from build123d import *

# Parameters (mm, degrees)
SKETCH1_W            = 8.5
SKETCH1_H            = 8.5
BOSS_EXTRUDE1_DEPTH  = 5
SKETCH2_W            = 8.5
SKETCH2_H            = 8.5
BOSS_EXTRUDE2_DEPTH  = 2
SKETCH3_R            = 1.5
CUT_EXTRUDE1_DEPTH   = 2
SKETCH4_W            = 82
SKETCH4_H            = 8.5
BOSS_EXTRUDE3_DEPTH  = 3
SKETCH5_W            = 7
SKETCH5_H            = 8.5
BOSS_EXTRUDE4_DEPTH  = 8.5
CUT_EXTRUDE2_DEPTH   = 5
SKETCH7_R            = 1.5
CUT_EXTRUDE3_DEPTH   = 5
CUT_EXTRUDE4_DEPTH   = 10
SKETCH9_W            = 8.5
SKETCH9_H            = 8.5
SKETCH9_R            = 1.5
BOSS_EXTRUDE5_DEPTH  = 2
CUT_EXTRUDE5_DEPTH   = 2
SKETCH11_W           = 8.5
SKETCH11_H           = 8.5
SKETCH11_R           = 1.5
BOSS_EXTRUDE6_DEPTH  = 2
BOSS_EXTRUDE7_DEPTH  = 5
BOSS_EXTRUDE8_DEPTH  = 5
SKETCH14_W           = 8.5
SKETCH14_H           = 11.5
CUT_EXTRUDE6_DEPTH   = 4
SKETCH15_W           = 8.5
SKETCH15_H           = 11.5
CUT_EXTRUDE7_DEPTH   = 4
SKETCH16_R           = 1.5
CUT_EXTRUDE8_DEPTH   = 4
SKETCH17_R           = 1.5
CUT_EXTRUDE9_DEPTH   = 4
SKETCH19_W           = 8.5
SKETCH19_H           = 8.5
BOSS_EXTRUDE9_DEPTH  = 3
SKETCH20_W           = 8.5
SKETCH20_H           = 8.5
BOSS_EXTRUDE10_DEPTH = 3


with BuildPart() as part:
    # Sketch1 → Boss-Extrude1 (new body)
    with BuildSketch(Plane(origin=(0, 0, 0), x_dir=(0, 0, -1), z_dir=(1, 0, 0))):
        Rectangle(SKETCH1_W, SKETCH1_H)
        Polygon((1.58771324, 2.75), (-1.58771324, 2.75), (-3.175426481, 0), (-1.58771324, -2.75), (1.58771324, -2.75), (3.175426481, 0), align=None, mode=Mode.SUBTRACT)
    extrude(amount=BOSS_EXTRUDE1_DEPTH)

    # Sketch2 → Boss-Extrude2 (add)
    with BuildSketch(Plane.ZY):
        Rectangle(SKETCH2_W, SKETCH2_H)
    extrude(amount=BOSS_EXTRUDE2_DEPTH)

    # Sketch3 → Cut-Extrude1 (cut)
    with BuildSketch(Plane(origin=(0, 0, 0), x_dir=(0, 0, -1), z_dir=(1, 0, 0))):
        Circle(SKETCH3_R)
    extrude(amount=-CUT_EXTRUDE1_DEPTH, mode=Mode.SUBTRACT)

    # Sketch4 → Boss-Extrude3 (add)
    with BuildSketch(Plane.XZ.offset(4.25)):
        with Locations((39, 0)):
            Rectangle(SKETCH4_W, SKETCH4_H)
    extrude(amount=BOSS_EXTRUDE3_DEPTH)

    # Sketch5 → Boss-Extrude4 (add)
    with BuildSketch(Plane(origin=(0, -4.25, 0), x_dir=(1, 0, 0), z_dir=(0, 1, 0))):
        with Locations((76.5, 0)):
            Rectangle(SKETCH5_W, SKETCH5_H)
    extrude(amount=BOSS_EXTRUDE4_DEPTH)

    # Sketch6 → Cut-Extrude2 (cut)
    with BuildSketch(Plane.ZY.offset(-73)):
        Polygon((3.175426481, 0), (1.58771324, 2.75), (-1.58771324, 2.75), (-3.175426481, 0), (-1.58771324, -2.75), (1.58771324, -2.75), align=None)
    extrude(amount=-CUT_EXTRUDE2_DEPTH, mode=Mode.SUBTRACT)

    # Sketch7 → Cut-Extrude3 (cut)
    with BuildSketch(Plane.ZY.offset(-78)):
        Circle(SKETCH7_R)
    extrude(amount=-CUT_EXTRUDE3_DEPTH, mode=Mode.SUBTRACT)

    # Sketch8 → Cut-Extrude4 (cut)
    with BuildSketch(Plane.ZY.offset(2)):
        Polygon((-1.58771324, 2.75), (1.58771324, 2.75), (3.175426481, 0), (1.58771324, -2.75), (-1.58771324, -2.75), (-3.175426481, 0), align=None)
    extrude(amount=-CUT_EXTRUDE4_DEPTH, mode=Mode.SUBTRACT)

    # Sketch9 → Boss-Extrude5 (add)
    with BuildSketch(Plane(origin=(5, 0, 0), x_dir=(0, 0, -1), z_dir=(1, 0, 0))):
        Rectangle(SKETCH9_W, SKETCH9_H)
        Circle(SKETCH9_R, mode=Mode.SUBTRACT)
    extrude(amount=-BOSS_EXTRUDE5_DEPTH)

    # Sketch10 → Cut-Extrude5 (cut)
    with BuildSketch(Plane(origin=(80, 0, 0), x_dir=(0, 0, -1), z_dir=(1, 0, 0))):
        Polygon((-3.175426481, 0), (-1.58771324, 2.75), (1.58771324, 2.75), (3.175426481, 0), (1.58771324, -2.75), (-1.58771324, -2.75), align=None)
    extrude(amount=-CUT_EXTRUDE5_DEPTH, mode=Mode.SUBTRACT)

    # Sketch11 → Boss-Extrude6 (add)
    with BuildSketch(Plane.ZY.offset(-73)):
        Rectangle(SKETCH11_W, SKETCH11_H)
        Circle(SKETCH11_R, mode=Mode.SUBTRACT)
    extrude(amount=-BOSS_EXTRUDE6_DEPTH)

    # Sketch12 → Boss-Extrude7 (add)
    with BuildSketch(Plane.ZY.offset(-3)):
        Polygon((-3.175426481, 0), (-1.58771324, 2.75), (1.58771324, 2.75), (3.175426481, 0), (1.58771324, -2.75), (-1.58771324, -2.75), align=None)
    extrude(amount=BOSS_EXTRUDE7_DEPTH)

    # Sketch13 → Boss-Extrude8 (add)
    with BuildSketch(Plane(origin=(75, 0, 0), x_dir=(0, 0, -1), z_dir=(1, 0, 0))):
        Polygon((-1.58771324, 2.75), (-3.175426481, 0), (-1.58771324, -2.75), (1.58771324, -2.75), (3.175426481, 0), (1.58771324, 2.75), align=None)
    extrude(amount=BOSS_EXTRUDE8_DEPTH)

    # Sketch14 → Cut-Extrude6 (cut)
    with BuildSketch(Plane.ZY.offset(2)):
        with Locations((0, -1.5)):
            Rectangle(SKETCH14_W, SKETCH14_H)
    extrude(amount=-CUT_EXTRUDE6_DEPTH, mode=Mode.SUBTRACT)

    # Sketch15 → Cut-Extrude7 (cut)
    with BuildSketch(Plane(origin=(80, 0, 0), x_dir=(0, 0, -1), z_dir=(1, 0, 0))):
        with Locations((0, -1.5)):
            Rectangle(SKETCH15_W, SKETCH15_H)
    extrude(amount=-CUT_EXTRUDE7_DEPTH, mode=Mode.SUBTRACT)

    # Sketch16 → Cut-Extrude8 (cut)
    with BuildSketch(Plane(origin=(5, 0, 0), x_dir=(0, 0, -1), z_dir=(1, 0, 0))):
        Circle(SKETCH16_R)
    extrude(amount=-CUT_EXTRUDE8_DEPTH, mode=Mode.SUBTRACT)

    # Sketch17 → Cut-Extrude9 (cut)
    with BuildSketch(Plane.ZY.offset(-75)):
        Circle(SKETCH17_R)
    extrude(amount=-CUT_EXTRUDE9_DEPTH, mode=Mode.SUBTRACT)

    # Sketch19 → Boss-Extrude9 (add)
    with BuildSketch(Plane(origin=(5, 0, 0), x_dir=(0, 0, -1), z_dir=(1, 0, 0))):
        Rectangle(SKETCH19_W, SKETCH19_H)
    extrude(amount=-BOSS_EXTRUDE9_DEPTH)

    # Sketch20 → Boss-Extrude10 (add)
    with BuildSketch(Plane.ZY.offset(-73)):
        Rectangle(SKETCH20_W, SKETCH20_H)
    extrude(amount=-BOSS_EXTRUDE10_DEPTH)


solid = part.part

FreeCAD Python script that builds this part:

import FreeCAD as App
import Part
import Sketcher
Q = App.Units.Quantity

doc = App.newDocument("Part")
body = doc.addObject("PartDesign::Body", "Body")

sketch1 = body.newObject("Sketcher::SketchObject", "Sketch")
sketch1.AttachmentSupport = (doc.getObject("YZ_Plane"), [""])
sketch1.MapMode = "FlatFace"
sketch1.addGeometry(Part.LineSegment(App.Vector(4.2, 4.2, 0), App.Vector(-4.2, 4.2, 0)), False)
sketch1.addGeometry(Part.LineSegment(App.Vector(-4.2, 4.2, 0), App.Vector(-4.2, -4.2, 0)), False)
sketch1.addGeometry(Part.LineSegment(App.Vector(-4.2, -4.2, 0), App.Vector(4.2, -4.2, 0)), False)
sketch1.addGeometry(Part.LineSegment(App.Vector(4.2, -4.2, 0), App.Vector(4.2, 4.2, 0)), False)
sketch1.addGeometry(Part.LineSegment(App.Vector(2.8, 1.6, 0), App.Vector(2.8, -1.6, 0)), False)
sketch1.addGeometry(Part.LineSegment(App.Vector(2.8, -1.6, 0), App.Vector(0, -3.2, 0)), False)
sketch1.addGeometry(Part.LineSegment(App.Vector(0, -3.2, 0), App.Vector(-2.8, -1.6, 0)), False)
sketch1.addGeometry(Part.LineSegment(App.Vector(-2.8, -1.6, 0), App.Vector(-2.8, 1.6, 0)), False)
sketch1.addGeometry(Part.LineSegment(App.Vector(-2.8, 1.6, 0), App.Vector(0, 3.2, 0)), False)
sketch1.addGeometry(Part.LineSegment(App.Vector(0, 3.2, 0), App.Vector(2.8, 1.6, 0)), False)
sketch1.addConstraint(Sketcher.Constraint("Coincident", 0, 2, 1, 1))
sketch1.addConstraint(Sketcher.Constraint("Coincident", 1, 2, 2, 1))
sketch1.addConstraint(Sketcher.Constraint("Coincident", 2, 2, 3, 1))
sketch1.addConstraint(Sketcher.Constraint("Coincident", 3, 2, 0, 1))
sketch1.addConstraint(Sketcher.Constraint("Coincident", 4, 2, 5, 1))
sketch1.addConstraint(Sketcher.Constraint("Coincident", 5, 2, 6, 1))
sketch1.addConstraint(Sketcher.Constraint("Coincident", 6, 2, 7, 1))
sketch1.addConstraint(Sketcher.Constraint("Coincident", 7, 2, 8, 1))
sketch1.addConstraint(Sketcher.Constraint("Coincident", 8, 2, 9, 1))
sketch1.addConstraint(Sketcher.Constraint("Coincident", 9, 2, 4, 1))
sketch1.addConstraint(Sketcher.Constraint("Horizontal", 0))
sketch1.addConstraint(Sketcher.Constraint("Vertical", 1))
sketch1.addConstraint(Sketcher.Constraint("Horizontal", 2))
sketch1.addConstraint(Sketcher.Constraint("Vertical", 3))
sketch1.addConstraint(Sketcher.Constraint("Vertical", 4))
sketch1.addConstraint(Sketcher.Constraint("Vertical", 7))
sketch1.addConstraint(Sketcher.Constraint("Symmetric", 0, 2, 2, 2, -1, 1))
sketch1.addConstraint(Sketcher.Constraint("Symmetric", 4, 2, 7, 2, -1, 1))
sketch1.addConstraint(Sketcher.Constraint("Symmetric", 5, 2, 8, 2, -1, 1))
sketch1.addConstraint(Sketcher.Constraint("PointOnObject", 5, 2, -2))
sketch1.addConstraint(Sketcher.Constraint("Parallel", 6, 9))
sketch1.addConstraint(Sketcher.Constraint("Horizontal", 4, 2, 6, 2))
sketch1.addConstraint(Sketcher.Constraint("Equal", 2, 1))
sketch1.addConstraint(Sketcher.Constraint("Angle", 5, Q("-150 deg")))
sketch1.addConstraint(Sketcher.Constraint("DistanceX", 0, 2, 0, 1, 8.5))
sketch1.addConstraint(Sketcher.Constraint("DistanceX", 1, 2, 4, 2, 7.0))
sketch1.addConstraint(Sketcher.Constraint("DistanceY", 4, 2, 4, 1, 3.175426))
pad1 = body.newObject("PartDesign::Pad", "Pad")
pad1.Profile = sketch1
pad1.Length = 5

sketch2 = body.newObject("Sketcher::SketchObject", "Sketch001")
sketch2.AttachmentSupport = (doc.getObject("YZ_Plane"), [""])
sketch2.MapMode = "FlatFace"
sketch2.addGeometry(Part.LineSegment(App.Vector(4, -4, 0), App.Vector(-4, -4, 0)), False)
sketch2.addGeometry(Part.LineSegment(App.Vector(-4, -4, 0), App.Vector(-4, 4, 0)), False)
sketch2.addGeometry(Part.LineSegment(App.Vector(-4, 4, 0), App.Vector(4, 4, 0)), False)
sketch2.addGeometry(Part.LineSegment(App.Vector(4, 4, 0), App.Vector(4, -4, 0)), False)
sketch2.addConstraint(Sketcher.Constraint("Coincident", 0, 2, 1, 1))
sketch2.addConstraint(Sketcher.Constraint("Coincident", 1, 2, 2, 1))
sketch2.addConstraint(Sketcher.Constraint("Coincident", 2, 2, 3, 1))
sketch2.addConstraint(Sketcher.Constraint("Coincident", 3, 2, 0, 1))
sketch2.addConstraint(Sketcher.Constraint("Horizontal", 0))
sketch2.addConstraint(Sketcher.Constraint("Vertical", 1))
sketch2.addConstraint(Sketcher.Constraint("Horizontal", 2))
sketch2.addConstraint(Sketcher.Constraint("Vertical", 3))
sketch2.addConstraint(Sketcher.Constraint("Symmetric", 0, 2, 2, 2, -1, 1))
sketch2.addConstraint(Sketcher.Constraint("Equal", 2, 1))
sketch2.addConstraint(Sketcher.Constraint("DistanceX", 0, 2, 0, 1, 8.5))
pad2 = body.newObject("PartDesign::Pad", "Pad001")
pad2.Profile = sketch2
pad2.Length = 2
pad2.Reversed = True

sketch3 = body.newObject("Sketcher::SketchObject", "Sketch002")
sketch3.AttachmentSupport = (doc.getObject("YZ_Plane"), [""])
sketch3.MapMode = "FlatFace"
sketch3.addGeometry(Part.Circle(App.Vector(0, 0, 0), App.Vector(0, 0, 1), 1.5), False)
sketch3.addConstraint(Sketcher.Constraint("Coincident", 0, 3, -1, 1))
sketch3.addConstraint(Sketcher.Constraint("Diameter", 0, 3.0))
pocket1 = body.newObject("PartDesign::Pocket", "Pocket")
pocket1.Profile = sketch3
pocket1.Length = 2

sketch4 = body.newObject("Sketcher::SketchObject", "Sketch003")
sketch4.AttachmentSupport = (doc.getObject("XZ_Plane"), [""])
sketch4.MapMode = "FlatFace"
sketch4.AttachmentOffset = App.Placement(App.Vector(0, 0, 4.25), App.Rotation())
sketch4.addGeometry(Part.LineSegment(App.Vector(-2, 4, 0), App.Vector(-2, -4, 0)), False)
sketch4.addGeometry(Part.LineSegment(App.Vector(-2, -4, 0), App.Vector(80, -4, 0)), False)
sketch4.addGeometry(Part.LineSegment(App.Vector(80, -4, 0), App.Vector(80, 4, 0)), False)
sketch4.addGeometry(Part.LineSegment(App.Vector(80, 4, 0), App.Vector(-2, 4, 0)), False)
sketch4.addConstraint(Sketcher.Constraint("Coincident", 0, 2, 1, 1))
sketch4.addConstraint(Sketcher.Constraint("Coincident", 1, 2, 2, 1))
sketch4.addConstraint(Sketcher.Constraint("Coincident", 2, 2, 3, 1))
sketch4.addConstraint(Sketcher.Constraint("Coincident", 3, 2, 0, 1))
sketch4.addConstraint(Sketcher.Constraint("Vertical", 0))
sketch4.addConstraint(Sketcher.Constraint("Horizontal", 1))
sketch4.addConstraint(Sketcher.Constraint("Vertical", 2))
sketch4.addConstraint(Sketcher.Constraint("Horizontal", 3))
sketch4.addConstraint(Sketcher.Constraint("DistanceX", 1, 1, 1, 2, 82.0))
sketch4.addConstraint(Sketcher.Constraint("DistanceY", 0, 2, 0, 1, 8.5))
sketch4.addConstraint(Sketcher.Constraint("DistanceX", 0, 2, -1, 1, 2.0))
sketch4.addConstraint(Sketcher.Constraint("DistanceY", 0, 2, -1, 1, 4.25))
pad3 = body.newObject("PartDesign::Pad", "Pad002")
pad3.Profile = sketch4
pad3.Length = 3

sketch5 = body.newObject("Sketcher::SketchObject", "Sketch004")
sketch5.AttachmentSupport = (doc.getObject("XZ_Plane"), [""])
sketch5.MapMode = "FlatFace"
sketch5.AttachmentOffset = App.Placement(App.Vector(0, 0, 4.25), App.Rotation())
sketch5.addGeometry(Part.LineSegment(App.Vector(73, -4, 0), App.Vector(73, 4, 0)), False)
sketch5.addGeometry(Part.LineSegment(App.Vector(73, 4, 0), App.Vector(80, 4, 0)), False)
sketch5.addGeometry(Part.LineSegment(App.Vector(80, 4, 0), App.Vector(80, -4, 0)), False)
sketch5.addGeometry(Part.LineSegment(App.Vector(80, -4, 0), App.Vector(73, -4, 0)), False)
sketch5.addConstraint(Sketcher.Constraint("Coincident", 0, 2, 1, 1))
sketch5.addConstraint(Sketcher.Constraint("Coincident", 1, 2, 2, 1))
sketch5.addConstraint(Sketcher.Constraint("Coincident", 2, 2, 3, 1))
sketch5.addConstraint(Sketcher.Constraint("Coincident", 3, 2, 0, 1))
sketch5.addConstraint(Sketcher.Constraint("Vertical", 0))
sketch5.addConstraint(Sketcher.Constraint("Horizontal", 1))
sketch5.addConstraint(Sketcher.Constraint("Vertical", 2))
sketch5.addConstraint(Sketcher.Constraint("Horizontal", 3))
sketch5.addConstraint(Sketcher.Constraint("DistanceX", 1, 1, 1, 2, 7.0))
sketch5.addConstraint(Sketcher.Constraint("DistanceY", 0, 1, 0, 2, 8.5))
sketch5.addConstraint(Sketcher.Constraint("DistanceX", -1, 1, 0, 2, 73.0))
sketch5.addConstraint(Sketcher.Constraint("DistanceY", -1, 1, 0, 2, 4.25))
pad4 = body.newObject("PartDesign::Pad", "Pad003")
pad4.Profile = sketch5
pad4.Length = 8.5
pad4.Reversed = True

sketch6 = body.newObject("Sketcher::SketchObject", "Sketch005")
sketch6.AttachmentSupport = (doc.getObject("YZ_Plane"), [""])
sketch6.MapMode = "FlatFace"
sketch6.AttachmentOffset = App.Placement(App.Vector(0, 0, 73), App.Rotation())
sketch6.addGeometry(Part.LineSegment(App.Vector(0, 3.2, 0), App.Vector(2.8, 1.6, 0)), False)
sketch6.addGeometry(Part.LineSegment(App.Vector(2.8, 1.6, 0), App.Vector(2.8, -1.6, 0)), False)
sketch6.addGeometry(Part.LineSegment(App.Vector(2.8, -1.6, 0), App.Vector(0, -3.2, 0)), False)
sketch6.addGeometry(Part.LineSegment(App.Vector(0, -3.2, 0), App.Vector(-2.8, -1.6, 0)), False)
sketch6.addGeometry(Part.LineSegment(App.Vector(-2.8, -1.6, 0), App.Vector(-2.8, 1.6, 0)), False)
sketch6.addGeometry(Part.LineSegment(App.Vector(-2.8, 1.6, 0), App.Vector(0, 3.2, 0)), False)
sketch6.addConstraint(Sketcher.Constraint("Coincident", 0, 2, 1, 1))
sketch6.addConstraint(Sketcher.Constraint("Coincident", 1, 2, 2, 1))
sketch6.addConstraint(Sketcher.Constraint("Coincident", 2, 2, 3, 1))
sketch6.addConstraint(Sketcher.Constraint("Coincident", 3, 2, 4, 1))
sketch6.addConstraint(Sketcher.Constraint("Coincident", 4, 2, 5, 1))
sketch6.addConstraint(Sketcher.Constraint("Coincident", 5, 2, 0, 1))
sketch6.addConstraint(Sketcher.Constraint("Vertical", 1))
sketch6.addConstraint(Sketcher.Constraint("Vertical", 4))
sketch6.addConstraint(Sketcher.Constraint("Symmetric", 0, 2, 3, 2, -1, 1))
sketch6.addConstraint(Sketcher.Constraint("Symmetric", 2, 2, 5, 2, -1, 1))
sketch6.addConstraint(Sketcher.Constraint("PointOnObject", 2, 2, -2))
sketch6.addConstraint(Sketcher.Constraint("Parallel", 2, 5))
sketch6.addConstraint(Sketcher.Constraint("Horizontal", 1, 2, 3, 2))
sketch6.addConstraint(Sketcher.Constraint("Angle", 0, Q("-30 deg")))
sketch6.addConstraint(Sketcher.Constraint("DistanceX", 3, 2, 1, 2, 5.5))
sketch6.addConstraint(Sketcher.Constraint("DistanceY", 1, 2, 1, 1, 3.175426))
pocket2 = body.newObject("PartDesign::Pocket", "Pocket001")
pocket2.Profile = sketch6
pocket2.Length = 5
pocket2.Reversed = True

sketch7 = body.newObject("Sketcher::SketchObject", "Sketch006")
sketch7.AttachmentSupport = (doc.getObject("YZ_Plane"), [""])
sketch7.MapMode = "FlatFace"
sketch7.AttachmentOffset = App.Placement(App.Vector(0, 0, 78), App.Rotation())
sketch7.addGeometry(Part.Circle(App.Vector(0, 0, 0), App.Vector(0, 0, 1), 1.5), False)
sketch7.addConstraint(Sketcher.Constraint("Coincident", 0, 3, -1, 1))
sketch7.addConstraint(Sketcher.Constraint("Diameter", 0, 3.0))
pocket3 = body.newObject("PartDesign::Pocket", "Pocket002")
pocket3.Profile = sketch7
pocket3.Length = 5
pocket3.Reversed = True

sketch8 = body.newObject("Sketcher::SketchObject", "Sketch007")
sketch8.AttachmentSupport = (doc.getObject("YZ_Plane"), [""])
sketch8.MapMode = "FlatFace"
sketch8.AttachmentOffset = App.Placement(App.Vector(0, 0, -2), App.Rotation())
sketch8.addGeometry(Part.LineSegment(App.Vector(2.8, 1.6, 0), App.Vector(2.8, -1.6, 0)), False)
sketch8.addGeometry(Part.LineSegment(App.Vector(2.8, -1.6, 0), App.Vector(0, -3.2, 0)), False)
sketch8.addGeometry(Part.LineSegment(App.Vector(0, -3.2, 0), App.Vector(-2.8, -1.6, 0)), False)
sketch8.addGeometry(Part.LineSegment(App.Vector(-2.8, -1.6, 0), App.Vector(-2.8, 1.6, 0)), False)
sketch8.addGeometry(Part.LineSegment(App.Vector(-2.8, 1.6, 0), App.Vector(0, 3.2, 0)), False)
sketch8.addGeometry(Part.LineSegment(App.Vector(0, 3.2, 0), App.Vector(2.8, 1.6, 0)), False)
sketch8.addConstraint(Sketcher.Constraint("Coincident", 0, 2, 1, 1))
sketch8.addConstraint(Sketcher.Constraint("Coincident", 1, 2, 2, 1))
sketch8.addConstraint(Sketcher.Constraint("Coincident", 2, 2, 3, 1))
sketch8.addConstraint(Sketcher.Constraint("Coincident", 3, 2, 4, 1))
sketch8.addConstraint(Sketcher.Constraint("Coincident", 4, 2, 5, 1))
sketch8.addConstraint(Sketcher.Constraint("Coincident", 5, 2, 0, 1))
sketch8.addConstraint(Sketcher.Constraint("Vertical", 0))
sketch8.addConstraint(Sketcher.Constraint("Vertical", 3))
sketch8.addConstraint(Sketcher.Constraint("Symmetric", 0, 2, 3, 2, -1, 1))
sketch8.addConstraint(Sketcher.Constraint("Symmetric", 1, 2, 4, 2, -1, 1))
sketch8.addConstraint(Sketcher.Constraint("PointOnObject", 1, 2, -2))
sketch8.addConstraint(Sketcher.Constraint("Parallel", 2, 5))
sketch8.addConstraint(Sketcher.Constraint("Horizontal", 0, 2, 2, 2))
sketch8.addConstraint(Sketcher.Constraint("Angle", 1, Q("-150 deg")))
sketch8.addConstraint(Sketcher.Constraint("DistanceX", 2, 2, 0, 2, 5.5))
sketch8.addConstraint(Sketcher.Constraint("DistanceY", 0, 2, 0, 1, 3.175426))
pocket4 = body.newObject("PartDesign::Pocket", "Pocket003")
pocket4.Profile = sketch8
pocket4.Length = 10
pocket4.Reversed = True

sketch9 = body.newObject("Sketcher::SketchObject", "Sketch008")
sketch9.AttachmentSupport = (doc.getObject("YZ_Plane"), [""])
sketch9.MapMode = "FlatFace"
sketch9.AttachmentOffset = App.Placement(App.Vector(0, 0, 5), App.Rotation())
sketch9.addGeometry(Part.LineSegment(App.Vector(4.2, 4.2, 0), App.Vector(-4.2, 4.2, 0)), False)
sketch9.addGeometry(Part.LineSegment(App.Vector(-4.2, 4.2, 0), App.Vector(-4.2, -4.2, 0)), False)
sketch9.addGeometry(Part.LineSegment(App.Vector(-4.2, -4.2, 0), App.Vector(4.2, -4.2, 0)), False)
sketch9.addGeometry(Part.LineSegment(App.Vector(4.2, -4.2, 0), App.Vector(4.2, 4.2, 0)), False)
sketch9.addGeometry(Part.Circle(App.Vector(0, 0, 0), App.Vector(0, 0, 1), 1.5), False)
sketch9.addConstraint(Sketcher.Constraint("Coincident", 0, 2, 1, 1))
sketch9.addConstraint(Sketcher.Constraint("Coincident", 1, 2, 2, 1))
sketch9.addConstraint(Sketcher.Constraint("Coincident", 2, 2, 3, 1))
sketch9.addConstraint(Sketcher.Constraint("Coincident", 3, 2, 0, 1))
sketch9.addConstraint(Sketcher.Constraint("Horizontal", 0))
sketch9.addConstraint(Sketcher.Constraint("Vertical", 1))
sketch9.addConstraint(Sketcher.Constraint("Horizontal", 2))
sketch9.addConstraint(Sketcher.Constraint("Vertical", 3))
sketch9.addConstraint(Sketcher.Constraint("Coincident", 4, 3, -1, 1))
sketch9.addConstraint(Sketcher.Constraint("Symmetric", 0, 2, 2, 2, -1, 1))
sketch9.addConstraint(Sketcher.Constraint("Equal", 2, 1))
sketch9.addConstraint(Sketcher.Constraint("Diameter", 4, 3.0))
sketch9.addConstraint(Sketcher.Constraint("DistanceX", 0, 2, 0, 1, 8.5))
pad5 = body.newObject("PartDesign::Pad", "Pad004")
pad5.Profile = sketch9
pad5.Length = 2
pad5.Reversed = True

sketch10 = body.newObject("Sketcher::SketchObject", "Sketch009")
sketch10.AttachmentSupport = (doc.getObject("YZ_Plane"), [""])
sketch10.MapMode = "FlatFace"
sketch10.AttachmentOffset = App.Placement(App.Vector(0, 0, 80), App.Rotation())
sketch10.addGeometry(Part.LineSegment(App.Vector(2.8, 1.6, 0), App.Vector(0, 3.2, 0)), False)
sketch10.addGeometry(Part.LineSegment(App.Vector(0, 3.2, 0), App.Vector(-2.8, 1.6, 0)), False)
sketch10.addGeometry(Part.LineSegment(App.Vector(-2.8, 1.6, 0), App.Vector(-2.8, -1.6, 0)), False)
sketch10.addGeometry(Part.LineSegment(App.Vector(-2.8, -1.6, 0), App.Vector(0, -3.2, 0)), False)
sketch10.addGeometry(Part.LineSegment(App.Vector(0, -3.2, 0), App.Vector(2.8, -1.6, 0)), False)
sketch10.addGeometry(Part.LineSegment(App.Vector(2.8, -1.6, 0), App.Vector(2.8, 1.6, 0)), False)
sketch10.addConstraint(Sketcher.Constraint("Coincident", 0, 2, 1, 1))
sketch10.addConstraint(Sketcher.Constraint("Coincident", 1, 2, 2, 1))
sketch10.addConstraint(Sketcher.Constraint("Coincident", 2, 2, 3, 1))
sketch10.addConstraint(Sketcher.Constraint("Coincident", 3, 2, 4, 1))
sketch10.addConstraint(Sketcher.Constraint("Coincident", 4, 2, 5, 1))
sketch10.addConstraint(Sketcher.Constraint("Coincident", 5, 2, 0, 1))
sketch10.addConstraint(Sketcher.Constraint("Vertical", 2))
sketch10.addConstraint(Sketcher.Constraint("Vertical", 5))
sketch10.addConstraint(Sketcher.Constraint("Symmetric", 0, 2, 3, 2, -1, 1))
sketch10.addConstraint(Sketcher.Constraint("Symmetric", 1, 2, 4, 2, -1, 1))
sketch10.addConstraint(Sketcher.Constraint("PointOnObject", 0, 2, -2))
sketch10.addConstraint(Sketcher.Constraint("Parallel", 0, 3))
sketch10.addConstraint(Sketcher.Constraint("Horizontal", 2, 2, 4, 2))
sketch10.addConstraint(Sketcher.Constraint("Angle", 0, Q("150 deg")))
sketch10.addConstraint(Sketcher.Constraint("DistanceX", 2, 2, 4, 2, 5.5))
sketch10.addConstraint(Sketcher.Constraint("DistanceY", 2, 2, 2, 1, 3.175426))
pocket5 = body.newObject("PartDesign::Pocket", "Pocket004")
pocket5.Profile = sketch10
pocket5.Length = 2

sketch11 = body.newObject("Sketcher::SketchObject", "Sketch010")
sketch11.AttachmentSupport = (doc.getObject("YZ_Plane"), [""])
sketch11.MapMode = "FlatFace"
sketch11.AttachmentOffset = App.Placement(App.Vector(0, 0, 73), App.Rotation())
sketch11.addGeometry(Part.LineSegment(App.Vector(4.2, -4.2, 0), App.Vector(-4.2, -4.2, 0)), False)
sketch11.addGeometry(Part.LineSegment(App.Vector(-4.2, -4.2, 0), App.Vector(-4.2, 4.2, 0)), False)
sketch11.addGeometry(Part.LineSegment(App.Vector(-4.2, 4.2, 0), App.Vector(4.2, 4.2, 0)), False)
sketch11.addGeometry(Part.LineSegment(App.Vector(4.2, 4.2, 0), App.Vector(4.2, -4.2, 0)), False)
sketch11.addGeometry(Part.Circle(App.Vector(0, 0, 0), App.Vector(0, 0, 1), 1.5), False)
sketch11.addConstraint(Sketcher.Constraint("Coincident", 0, 2, 1, 1))
sketch11.addConstraint(Sketcher.Constraint("Coincident", 1, 2, 2, 1))
sketch11.addConstraint(Sketcher.Constraint("Coincident", 2, 2, 3, 1))
sketch11.addConstraint(Sketcher.Constraint("Coincident", 3, 2, 0, 1))
sketch11.addConstraint(Sketcher.Constraint("Horizontal", 0))
sketch11.addConstraint(Sketcher.Constraint("Vertical", 1))
sketch11.addConstraint(Sketcher.Constraint("Horizontal", 2))
sketch11.addConstraint(Sketcher.Constraint("Vertical", 3))
sketch11.addConstraint(Sketcher.Constraint("Coincident", 4, 3, -1, 1))
sketch11.addConstraint(Sketcher.Constraint("Symmetric", 0, 2, 2, 2, -1, 1))
sketch11.addConstraint(Sketcher.Constraint("Equal", 2, 1))
sketch11.addConstraint(Sketcher.Constraint("Diameter", 4, 3.0))
sketch11.addConstraint(Sketcher.Constraint("DistanceX", 0, 2, 0, 1, 8.5))
pad6 = body.newObject("PartDesign::Pad", "Pad005")
pad6.Profile = sketch11
pad6.Length = 2

sketch12 = body.newObject("Sketcher::SketchObject", "Sketch011")
sketch12.AttachmentSupport = (doc.getObject("YZ_Plane"), [""])
sketch12.MapMode = "FlatFace"
sketch12.AttachmentOffset = App.Placement(App.Vector(0, 0, 3), App.Rotation())
sketch12.addGeometry(Part.LineSegment(App.Vector(2.8, -1.6, 0), App.Vector(0, -3.2, 0)), False)
sketch12.addGeometry(Part.LineSegment(App.Vector(0, -3.2, 0), App.Vector(-2.8, -1.6, 0)), False)
sketch12.addGeometry(Part.LineSegment(App.Vector(-2.8, -1.6, 0), App.Vector(-2.8, 1.6, 0)), False)
sketch12.addGeometry(Part.LineSegment(App.Vector(-2.8, 1.6, 0), App.Vector(0, 3.2, 0)), False)
sketch12.addGeometry(Part.LineSegment(App.Vector(0, 3.2, 0), App.Vector(2.8, 1.6, 0)), False)
sketch12.addGeometry(Part.LineSegment(App.Vector(2.8, 1.6, 0), App.Vector(2.8, -1.6, 0)), False)
sketch12.addConstraint(Sketcher.Constraint("Coincident", 0, 2, 1, 1))
sketch12.addConstraint(Sketcher.Constraint("Coincident", 1, 2, 2, 1))
sketch12.addConstraint(Sketcher.Constraint("Coincident", 2, 2, 3, 1))
sketch12.addConstraint(Sketcher.Constraint("Coincident", 3, 2, 4, 1))
sketch12.addConstraint(Sketcher.Constraint("Coincident", 4, 2, 5, 1))
sketch12.addConstraint(Sketcher.Constraint("Coincident", 5, 2, 0, 1))
sketch12.addConstraint(Sketcher.Constraint("Vertical", 2))
sketch12.addConstraint(Sketcher.Constraint("Vertical", 5))
sketch12.addConstraint(Sketcher.Constraint("Symmetric", 0, 2, 3, 2, -1, 1))
sketch12.addConstraint(Sketcher.Constraint("Symmetric", 1, 2, 4, 2, -1, 1))
sketch12.addConstraint(Sketcher.Constraint("PointOnObject", 0, 2, -2))
sketch12.addConstraint(Sketcher.Constraint("Parallel", 0, 3))
sketch12.addConstraint(Sketcher.Constraint("Horizontal", 2, 2, 4, 2))
sketch12.addConstraint(Sketcher.Constraint("Angle", 0, Q("-150 deg")))
sketch12.addConstraint(Sketcher.Constraint("DistanceX", 2, 2, 4, 2, 5.5))
sketch12.addConstraint(Sketcher.Constraint("DistanceY", 2, 1, 2, 2, 3.175426))
pad7 = body.newObject("PartDesign::Pad", "Pad006")
pad7.Profile = sketch12
pad7.Length = 5
pad7.Reversed = True

sketch13 = body.newObject("Sketcher::SketchObject", "Sketch012")
sketch13.AttachmentSupport = (doc.getObject("YZ_Plane"), [""])
sketch13.MapMode = "FlatFace"
sketch13.AttachmentOffset = App.Placement(App.Vector(0, 0, 75), App.Rotation())
sketch13.addGeometry(Part.LineSegment(App.Vector(2.8, 1.6, 0), App.Vector(0, 3.2, 0)), False)
sketch13.addGeometry(Part.LineSegment(App.Vector(0, 3.2, 0), App.Vector(-2.8, 1.6, 0)), False)
sketch13.addGeometry(Part.LineSegment(App.Vector(-2.8, 1.6, 0), App.Vector(-2.8, -1.6, 0)), False)
sketch13.addGeometry(Part.LineSegment(App.Vector(-2.8, -1.6, 0), App.Vector(0, -3.2, 0)), False)
sketch13.addGeometry(Part.LineSegment(App.Vector(0, -3.2, 0), App.Vector(2.8, -1.6, 0)), False)
sketch13.addGeometry(Part.LineSegment(App.Vector(2.8, -1.6, 0), App.Vector(2.8, 1.6, 0)), False)
sketch13.addConstraint(Sketcher.Constraint("Coincident", 0, 2, 1, 1))
sketch13.addConstraint(Sketcher.Constraint("Coincident", 1, 2, 2, 1))
sketch13.addConstraint(Sketcher.Constraint("Coincident", 2, 2, 3, 1))
sketch13.addConstraint(Sketcher.Constraint("Coincident", 3, 2, 4, 1))
sketch13.addConstraint(Sketcher.Constraint("Coincident", 4, 2, 5, 1))
sketch13.addConstraint(Sketcher.Constraint("Coincident", 5, 2, 0, 1))
sketch13.addConstraint(Sketcher.Constraint("Vertical", 2))
sketch13.addConstraint(Sketcher.Constraint("Vertical", 5))
sketch13.addConstraint(Sketcher.Constraint("Symmetric", 0, 2, 3, 2, -1, 1))
sketch13.addConstraint(Sketcher.Constraint("Symmetric", 1, 2, 4, 2, -1, 1))
sketch13.addConstraint(Sketcher.Constraint("PointOnObject", 0, 2, -2))
sketch13.addConstraint(Sketcher.Constraint("Parallel", 0, 3))
sketch13.addConstraint(Sketcher.Constraint("Horizontal", 2, 2, 4, 2))
sketch13.addConstraint(Sketcher.Constraint("Angle", 0, Q("150 deg")))
sketch13.addConstraint(Sketcher.Constraint("DistanceX", 2, 2, 4, 2, 5.5))
sketch13.addConstraint(Sketcher.Constraint("DistanceY", 2, 2, 2, 1, 3.175426))
pad8 = body.newObject("PartDesign::Pad", "Pad007")
pad8.Profile = sketch13
pad8.Length = 5

sketch14 = body.newObject("Sketcher::SketchObject", "Sketch013")
sketch14.AttachmentSupport = (doc.getObject("YZ_Plane"), [""])
sketch14.MapMode = "FlatFace"
sketch14.AttachmentOffset = App.Placement(App.Vector(0, 0, -2), App.Rotation())
sketch14.addGeometry(Part.LineSegment(App.Vector(4, -4, 0), App.Vector(-7, -4, 0)), False)
sketch14.addGeometry(Part.LineSegment(App.Vector(-7, -4, 0), App.Vector(-7, 4, 0)), False)
sketch14.addGeometry(Part.LineSegment(App.Vector(-7, 4, 0), App.Vector(4, 4, 0)), False)
sketch14.addGeometry(Part.LineSegment(App.Vector(4, 4, 0), App.Vector(4, -4, 0)), False)
sketch14.addConstraint(Sketcher.Constraint("Coincident", 0, 2, 1, 1))
sketch14.addConstraint(Sketcher.Constraint("Coincident", 1, 2, 2, 1))
sketch14.addConstraint(Sketcher.Constraint("Coincident", 2, 2, 3, 1))
sketch14.addConstraint(Sketcher.Constraint("Coincident", 3, 2, 0, 1))
sketch14.addConstraint(Sketcher.Constraint("Horizontal", 0))
sketch14.addConstraint(Sketcher.Constraint("Vertical", 1))
sketch14.addConstraint(Sketcher.Constraint("Horizontal", 2))
sketch14.addConstraint(Sketcher.Constraint("Vertical", 3))
sketch14.addConstraint(Sketcher.Constraint("DistanceX", 0, 2, 0, 1, 11.5))
sketch14.addConstraint(Sketcher.Constraint("DistanceY", 1, 1, 1, 2, 8.5))
sketch14.addConstraint(Sketcher.Constraint("DistanceX", 0, 2, -1, 1, 7.25))
sketch14.addConstraint(Sketcher.Constraint("DistanceY", 0, 2, -1, 1, 4.25))
pocket6 = body.newObject("PartDesign::Pocket", "Pocket005")
pocket6.Profile = sketch14
pocket6.Length = 4
pocket6.Reversed = True

sketch15 = body.newObject("Sketcher::SketchObject", "Sketch014")
sketch15.AttachmentSupport = (doc.getObject("YZ_Plane"), [""])
sketch15.MapMode = "FlatFace"
sketch15.AttachmentOffset = App.Placement(App.Vector(0, 0, 80), App.Rotation())
sketch15.addGeometry(Part.LineSegment(App.Vector(4, 4, 0), App.Vector(-7, 4, 0)), False)
sketch15.addGeometry(Part.LineSegment(App.Vector(-7, 4, 0), App.Vector(-7, -4, 0)), False)
sketch15.addGeometry(Part.LineSegment(App.Vector(-7, -4, 0), App.Vector(4, -4, 0)), False)
sketch15.addGeometry(Part.LineSegment(App.Vector(4, -4, 0), App.Vector(4, 4, 0)), False)
sketch15.addConstraint(Sketcher.Constraint("Coincident", 0, 2, 1, 1))
sketch15.addConstraint(Sketcher.Constraint("Coincident", 1, 2, 2, 1))
sketch15.addConstraint(Sketcher.Constraint("Coincident", 2, 2, 3, 1))
sketch15.addConstraint(Sketcher.Constraint("Coincident", 3, 2, 0, 1))
sketch15.addConstraint(Sketcher.Constraint("Horizontal", 0))
sketch15.addConstraint(Sketcher.Constraint("Vertical", 1))
sketch15.addConstraint(Sketcher.Constraint("Horizontal", 2))
sketch15.addConstraint(Sketcher.Constraint("Vertical", 3))
sketch15.addConstraint(Sketcher.Constraint("DistanceX", 0, 2, 0, 1, 11.5))
sketch15.addConstraint(Sketcher.Constraint("DistanceY", 1, 2, 1, 1, 8.5))
sketch15.addConstraint(Sketcher.Constraint("DistanceX", 0, 2, -1, 1, 7.25))
sketch15.addConstraint(Sketcher.Constraint("DistanceY", -1, 1, 0, 2, 4.25))
pocket7 = body.newObject("PartDesign::Pocket", "Pocket006")
pocket7.Profile = sketch15
pocket7.Length = 4

sketch16 = body.newObject("Sketcher::SketchObject", "Sketch015")
sketch16.AttachmentSupport = (doc.getObject("YZ_Plane"), [""])
sketch16.MapMode = "FlatFace"
sketch16.AttachmentOffset = App.Placement(App.Vector(0, 0, 5), App.Rotation())
sketch16.addGeometry(Part.Circle(App.Vector(0, 0, 0), App.Vector(0, 0, 1), 1.5), False)
sketch16.addConstraint(Sketcher.Constraint("Coincident", 0, 3, -1, 1))
sketch16.addConstraint(Sketcher.Constraint("Diameter", 0, 3.0))
pocket8 = body.newObject("PartDesign::Pocket", "Pocket007")
pocket8.Profile = sketch16
pocket8.Length = 4

sketch17 = body.newObject("Sketcher::SketchObject", "Sketch016")
sketch17.AttachmentSupport = (doc.getObject("YZ_Plane"), [""])
sketch17.MapMode = "FlatFace"
sketch17.AttachmentOffset = App.Placement(App.Vector(0, 0, 75), App.Rotation())
sketch17.addGeometry(Part.Circle(App.Vector(0, 0, 0), App.Vector(0, 0, 1), 1.5), False)
sketch17.addConstraint(Sketcher.Constraint("Coincident", 0, 3, -1, 1))
sketch17.addConstraint(Sketcher.Constraint("Diameter", 0, 3.0))
pocket9 = body.newObject("PartDesign::Pocket", "Pocket008")
pocket9.Profile = sketch17
pocket9.Length = 4
pocket9.Reversed = True

sketch18 = body.newObject("Sketcher::SketchObject", "Sketch017")
sketch18.AttachmentSupport = (doc.getObject("YZ_Plane"), [""])
sketch18.MapMode = "FlatFace"
sketch18.AttachmentOffset = App.Placement(App.Vector(0, 0, 5), App.Rotation())
sketch18.addGeometry(Part.LineSegment(App.Vector(4, 4, 0), App.Vector(-4, 4, 0)), False)
sketch18.addGeometry(Part.LineSegment(App.Vector(-4, 4, 0), App.Vector(-4, -4, 0)), False)
sketch18.addGeometry(Part.LineSegment(App.Vector(-4, -4, 0), App.Vector(4, -4, 0)), False)
sketch18.addGeometry(Part.LineSegment(App.Vector(4, -4, 0), App.Vector(4, 4, 0)), False)
sketch18.addConstraint(Sketcher.Constraint("Coincident", 0, 2, 1, 1))
sketch18.addConstraint(Sketcher.Constraint("Coincident", 1, 2, 2, 1))
sketch18.addConstraint(Sketcher.Constraint("Coincident", 2, 2, 3, 1))
sketch18.addConstraint(Sketcher.Constraint("Coincident", 3, 2, 0, 1))
sketch18.addConstraint(Sketcher.Constraint("Horizontal", 0))
sketch18.addConstraint(Sketcher.Constraint("Vertical", 1))
sketch18.addConstraint(Sketcher.Constraint("Horizontal", 2))
sketch18.addConstraint(Sketcher.Constraint("Vertical", 3))
sketch18.addConstraint(Sketcher.Constraint("Symmetric", 0, 2, 2, 2, -1, 1))
sketch18.addConstraint(Sketcher.Constraint("Equal", 2, 1))
sketch18.addConstraint(Sketcher.Constraint("DistanceX", 0, 2, 0, 1, 8.5))
pad9 = body.newObject("PartDesign::Pad", "Pad008")
pad9.Profile = sketch18
pad9.Length = 3
pad9.Reversed = True

sketch19 = body.newObject("Sketcher::SketchObject", "Sketch018")
sketch19.AttachmentSupport = (doc.getObject("YZ_Plane"), [""])
sketch19.MapMode = "FlatFace"
sketch19.AttachmentOffset = App.Placement(App.Vector(0, 0, 73), App.Rotation())
sketch19.addGeometry(Part.LineSegment(App.Vector(4, -4, 0), App.Vector(-4, -4, 0)), False)
sketch19.addGeometry(Part.LineSegment(App.Vector(-4, -4, 0), App.Vector(-4, 4, 0)), False)
sketch19.addGeometry(Part.LineSegment(App.Vector(-4, 4, 0), App.Vector(4, 4, 0)), False)
sketch19.addGeometry(Part.LineSegment(App.Vector(4, 4, 0), App.Vector(4, -4, 0)), False)
sketch19.addConstraint(Sketcher.Constraint("Coincident", 0, 2, 1, 1))
sketch19.addConstraint(Sketcher.Constraint("Coincident", 1, 2, 2, 1))
sketch19.addConstraint(Sketcher.Constraint("Coincident", 2, 2, 3, 1))
sketch19.addConstraint(Sketcher.Constraint("Coincident", 3, 2, 0, 1))
sketch19.addConstraint(Sketcher.Constraint("Horizontal", 0))
sketch19.addConstraint(Sketcher.Constraint("Vertical", 1))
sketch19.addConstraint(Sketcher.Constraint("Horizontal", 2))
sketch19.addConstraint(Sketcher.Constraint("Vertical", 3))
sketch19.addConstraint(Sketcher.Constraint("Symmetric", 0, 2, 2, 2, -1, 1))
sketch19.addConstraint(Sketcher.Constraint("Equal", 2, 1))
sketch19.addConstraint(Sketcher.Constraint("DistanceX", 0, 2, 0, 1, 8.5))
pad10 = body.newObject("PartDesign::Pad", "Pad009")
pad10.Profile = sketch19
pad10.Length = 3

doc.recompute()
